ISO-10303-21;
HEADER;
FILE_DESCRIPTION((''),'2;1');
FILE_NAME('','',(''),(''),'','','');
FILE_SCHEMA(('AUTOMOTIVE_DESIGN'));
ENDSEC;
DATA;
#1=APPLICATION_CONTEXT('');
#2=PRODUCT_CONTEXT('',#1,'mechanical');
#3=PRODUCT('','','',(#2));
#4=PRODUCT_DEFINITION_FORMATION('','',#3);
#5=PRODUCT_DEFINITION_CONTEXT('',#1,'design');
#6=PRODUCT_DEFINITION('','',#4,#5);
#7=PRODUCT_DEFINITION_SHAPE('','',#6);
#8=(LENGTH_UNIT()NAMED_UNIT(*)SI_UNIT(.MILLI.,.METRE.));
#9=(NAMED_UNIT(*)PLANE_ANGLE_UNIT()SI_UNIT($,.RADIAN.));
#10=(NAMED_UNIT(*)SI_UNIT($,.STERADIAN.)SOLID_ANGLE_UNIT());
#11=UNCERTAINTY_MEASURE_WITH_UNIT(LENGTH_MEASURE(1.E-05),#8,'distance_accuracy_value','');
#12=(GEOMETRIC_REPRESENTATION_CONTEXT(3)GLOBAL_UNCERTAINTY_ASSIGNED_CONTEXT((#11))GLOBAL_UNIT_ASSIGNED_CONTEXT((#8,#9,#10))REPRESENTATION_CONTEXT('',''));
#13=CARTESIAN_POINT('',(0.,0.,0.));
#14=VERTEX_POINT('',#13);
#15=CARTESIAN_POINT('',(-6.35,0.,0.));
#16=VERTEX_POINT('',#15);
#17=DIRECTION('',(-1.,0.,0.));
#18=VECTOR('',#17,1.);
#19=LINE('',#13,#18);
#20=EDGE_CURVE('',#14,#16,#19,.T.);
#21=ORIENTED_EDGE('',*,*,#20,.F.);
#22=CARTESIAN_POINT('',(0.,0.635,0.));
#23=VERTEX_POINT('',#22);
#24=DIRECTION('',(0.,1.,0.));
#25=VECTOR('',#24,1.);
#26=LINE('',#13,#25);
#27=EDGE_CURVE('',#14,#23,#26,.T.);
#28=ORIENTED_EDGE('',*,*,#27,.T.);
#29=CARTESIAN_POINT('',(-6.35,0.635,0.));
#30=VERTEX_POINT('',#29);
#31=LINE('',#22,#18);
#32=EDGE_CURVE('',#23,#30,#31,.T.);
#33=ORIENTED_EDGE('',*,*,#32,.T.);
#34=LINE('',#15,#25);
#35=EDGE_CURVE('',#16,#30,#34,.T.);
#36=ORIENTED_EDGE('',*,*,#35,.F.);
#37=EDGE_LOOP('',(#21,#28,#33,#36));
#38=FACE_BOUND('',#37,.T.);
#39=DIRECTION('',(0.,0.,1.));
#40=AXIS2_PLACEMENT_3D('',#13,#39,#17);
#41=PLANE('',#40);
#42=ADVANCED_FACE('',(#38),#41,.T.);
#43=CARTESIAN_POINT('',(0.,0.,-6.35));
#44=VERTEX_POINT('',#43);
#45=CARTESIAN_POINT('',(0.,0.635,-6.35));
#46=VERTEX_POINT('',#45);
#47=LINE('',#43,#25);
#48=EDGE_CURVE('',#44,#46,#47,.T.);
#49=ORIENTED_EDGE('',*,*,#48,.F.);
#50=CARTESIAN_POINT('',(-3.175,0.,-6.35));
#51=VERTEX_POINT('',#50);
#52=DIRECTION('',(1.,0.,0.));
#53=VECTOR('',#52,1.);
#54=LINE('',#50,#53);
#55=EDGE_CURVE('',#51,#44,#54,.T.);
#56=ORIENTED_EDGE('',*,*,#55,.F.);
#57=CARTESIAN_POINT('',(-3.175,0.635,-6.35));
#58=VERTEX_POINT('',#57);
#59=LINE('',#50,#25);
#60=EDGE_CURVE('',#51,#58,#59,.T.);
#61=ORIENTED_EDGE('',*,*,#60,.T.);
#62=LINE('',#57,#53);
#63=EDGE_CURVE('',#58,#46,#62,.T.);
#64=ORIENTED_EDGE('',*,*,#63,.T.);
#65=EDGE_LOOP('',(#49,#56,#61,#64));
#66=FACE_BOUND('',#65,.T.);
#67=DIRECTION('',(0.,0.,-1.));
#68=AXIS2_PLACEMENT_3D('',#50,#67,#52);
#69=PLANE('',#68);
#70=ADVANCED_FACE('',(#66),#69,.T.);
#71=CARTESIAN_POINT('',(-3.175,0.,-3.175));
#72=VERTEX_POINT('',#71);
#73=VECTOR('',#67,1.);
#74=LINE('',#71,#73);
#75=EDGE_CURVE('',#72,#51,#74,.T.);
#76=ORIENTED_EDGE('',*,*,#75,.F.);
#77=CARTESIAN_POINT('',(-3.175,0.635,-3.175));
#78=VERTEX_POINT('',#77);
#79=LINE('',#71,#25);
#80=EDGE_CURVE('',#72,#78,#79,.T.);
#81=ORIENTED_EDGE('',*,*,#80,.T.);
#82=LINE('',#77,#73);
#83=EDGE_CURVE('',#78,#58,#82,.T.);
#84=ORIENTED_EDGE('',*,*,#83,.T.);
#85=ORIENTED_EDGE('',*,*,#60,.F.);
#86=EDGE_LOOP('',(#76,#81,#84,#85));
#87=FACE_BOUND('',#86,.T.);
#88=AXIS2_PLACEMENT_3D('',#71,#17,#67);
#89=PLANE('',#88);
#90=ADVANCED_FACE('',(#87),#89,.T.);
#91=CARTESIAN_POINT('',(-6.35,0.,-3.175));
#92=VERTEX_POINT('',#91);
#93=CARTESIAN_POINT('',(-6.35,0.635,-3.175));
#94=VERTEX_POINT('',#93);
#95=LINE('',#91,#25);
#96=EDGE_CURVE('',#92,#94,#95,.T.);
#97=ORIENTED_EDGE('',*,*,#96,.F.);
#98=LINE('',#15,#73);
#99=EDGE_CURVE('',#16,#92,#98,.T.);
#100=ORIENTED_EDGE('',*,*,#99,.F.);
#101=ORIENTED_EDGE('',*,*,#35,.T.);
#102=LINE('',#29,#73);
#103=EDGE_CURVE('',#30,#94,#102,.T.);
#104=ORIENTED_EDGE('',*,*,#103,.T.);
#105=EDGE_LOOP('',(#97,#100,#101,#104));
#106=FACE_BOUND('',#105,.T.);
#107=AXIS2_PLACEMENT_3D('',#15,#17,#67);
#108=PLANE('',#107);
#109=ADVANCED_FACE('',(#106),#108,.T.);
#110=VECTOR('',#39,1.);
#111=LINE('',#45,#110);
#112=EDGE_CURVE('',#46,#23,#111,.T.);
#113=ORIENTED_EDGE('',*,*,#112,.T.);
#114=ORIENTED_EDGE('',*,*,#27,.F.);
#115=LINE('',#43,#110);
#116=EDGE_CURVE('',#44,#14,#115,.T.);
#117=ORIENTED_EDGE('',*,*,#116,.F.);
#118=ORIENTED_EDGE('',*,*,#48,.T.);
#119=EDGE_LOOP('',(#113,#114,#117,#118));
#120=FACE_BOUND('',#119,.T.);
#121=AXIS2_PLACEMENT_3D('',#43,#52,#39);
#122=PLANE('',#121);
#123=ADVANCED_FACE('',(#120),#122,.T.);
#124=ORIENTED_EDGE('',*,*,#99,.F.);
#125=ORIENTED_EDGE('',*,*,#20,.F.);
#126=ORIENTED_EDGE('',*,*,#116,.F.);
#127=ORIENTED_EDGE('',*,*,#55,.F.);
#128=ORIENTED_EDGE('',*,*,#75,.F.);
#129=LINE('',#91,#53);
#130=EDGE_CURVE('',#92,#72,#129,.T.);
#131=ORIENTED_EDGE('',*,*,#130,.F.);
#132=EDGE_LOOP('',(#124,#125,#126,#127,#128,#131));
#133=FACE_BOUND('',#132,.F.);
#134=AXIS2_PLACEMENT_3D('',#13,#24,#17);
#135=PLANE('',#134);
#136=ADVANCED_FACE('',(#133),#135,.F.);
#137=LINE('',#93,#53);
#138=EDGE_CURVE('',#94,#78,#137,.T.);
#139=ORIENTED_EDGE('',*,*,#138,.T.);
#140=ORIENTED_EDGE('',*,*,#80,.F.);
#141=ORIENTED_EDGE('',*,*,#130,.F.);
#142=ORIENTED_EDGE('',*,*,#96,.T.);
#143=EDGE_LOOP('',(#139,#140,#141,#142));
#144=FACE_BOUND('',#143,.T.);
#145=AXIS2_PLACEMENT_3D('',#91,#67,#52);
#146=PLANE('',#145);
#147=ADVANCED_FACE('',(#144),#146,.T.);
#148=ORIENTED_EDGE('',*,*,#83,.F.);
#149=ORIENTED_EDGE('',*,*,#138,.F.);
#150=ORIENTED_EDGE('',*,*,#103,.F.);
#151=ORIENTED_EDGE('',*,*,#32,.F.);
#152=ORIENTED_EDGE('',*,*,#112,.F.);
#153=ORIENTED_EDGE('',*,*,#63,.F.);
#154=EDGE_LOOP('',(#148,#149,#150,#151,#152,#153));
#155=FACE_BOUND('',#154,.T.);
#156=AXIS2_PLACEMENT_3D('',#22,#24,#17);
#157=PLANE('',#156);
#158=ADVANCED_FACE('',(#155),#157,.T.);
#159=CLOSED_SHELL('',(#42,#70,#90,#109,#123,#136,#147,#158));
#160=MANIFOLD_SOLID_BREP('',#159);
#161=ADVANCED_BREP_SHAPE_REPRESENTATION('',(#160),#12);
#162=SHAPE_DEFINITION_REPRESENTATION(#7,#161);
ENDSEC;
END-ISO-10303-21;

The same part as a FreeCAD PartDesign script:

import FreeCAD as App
import Part
import Sketcher
Q = App.Units.Quantity


def add_polygon(sketch, points):
    """Adds a closed chain of lines whose ends are joined by coincident constraints."""
    first, n = sketch.GeometryCount, len(points)
    for a, b in zip(points, points[1:] + points[:1]):
        sketch.addGeometry(Part.LineSegment(App.Vector(*a, 0), App.Vector(*b, 0)), False)
    for i in range(n):
        sketch.addConstraint(Sketcher.Constraint("Coincident", first + i, 2, first + (i + 1) % n, 1))

doc = App.newDocument("Part")
params = doc.addObject("Spreadsheet::Sheet", "Params")
for row, (alias, value) in enumerate([
    ("sketch1_width", "0.25 in"),
    ("pad1_length", "0.025 in"),
], start=1):
    params.set(f"A{row}", alias)
    params.set(f"B{row}", "=" + value)
    params.setAlias(f"B{row}", alias)

body = doc.addObject("PartDesign::Body", "Body")

# Sketch on XZ plane
sketch1 = body.newObject("Sketcher::SketchObject", "Sketch")
sketch1.AttachmentSupport = (doc.getObject("XZ_Plane"), [""])
sketch1.MapMode = "FlatFace"
add_polygon(sketch1, [(-6.35, 0), (0, 0), (0, -6.35), (-3.175, -6.35), (-3.175, -3.175), (-6.35, -3.175)])  # lines 0-5
sketch1.addConstraint([
    Sketcher.Constraint("Horizontal", 0),
    Sketcher.Constraint("Vertical", 1),
    Sketcher.Constraint("Horizontal", 2),
    Sketcher.Constraint("Vertical", 3),
    Sketcher.Constraint("Horizontal", 4),
    Sketcher.Constraint("Vertical", 5),
    Sketcher.Constraint("Coincident", 0, 2, -1, 1),
    Sketcher.Constraint("Equal", 2, 4),
    Sketcher.Constraint("Equal", 0, 1),
    Sketcher.Constraint("Equal", 4, 3),
    Sketcher.Constraint("DistanceX", 0, 1, 0, 2, Q("0.25 in")),
])
sketch1.setExpression("Constraints[16]", "Params.sketch1_width")
pad1 = body.newObject("PartDesign::Pad", "Pad")
pad1.Profile = sketch1
pad1.setExpression("Length", "Params.pad1_length")
pad1.Reversed = True

doc.recompute()
